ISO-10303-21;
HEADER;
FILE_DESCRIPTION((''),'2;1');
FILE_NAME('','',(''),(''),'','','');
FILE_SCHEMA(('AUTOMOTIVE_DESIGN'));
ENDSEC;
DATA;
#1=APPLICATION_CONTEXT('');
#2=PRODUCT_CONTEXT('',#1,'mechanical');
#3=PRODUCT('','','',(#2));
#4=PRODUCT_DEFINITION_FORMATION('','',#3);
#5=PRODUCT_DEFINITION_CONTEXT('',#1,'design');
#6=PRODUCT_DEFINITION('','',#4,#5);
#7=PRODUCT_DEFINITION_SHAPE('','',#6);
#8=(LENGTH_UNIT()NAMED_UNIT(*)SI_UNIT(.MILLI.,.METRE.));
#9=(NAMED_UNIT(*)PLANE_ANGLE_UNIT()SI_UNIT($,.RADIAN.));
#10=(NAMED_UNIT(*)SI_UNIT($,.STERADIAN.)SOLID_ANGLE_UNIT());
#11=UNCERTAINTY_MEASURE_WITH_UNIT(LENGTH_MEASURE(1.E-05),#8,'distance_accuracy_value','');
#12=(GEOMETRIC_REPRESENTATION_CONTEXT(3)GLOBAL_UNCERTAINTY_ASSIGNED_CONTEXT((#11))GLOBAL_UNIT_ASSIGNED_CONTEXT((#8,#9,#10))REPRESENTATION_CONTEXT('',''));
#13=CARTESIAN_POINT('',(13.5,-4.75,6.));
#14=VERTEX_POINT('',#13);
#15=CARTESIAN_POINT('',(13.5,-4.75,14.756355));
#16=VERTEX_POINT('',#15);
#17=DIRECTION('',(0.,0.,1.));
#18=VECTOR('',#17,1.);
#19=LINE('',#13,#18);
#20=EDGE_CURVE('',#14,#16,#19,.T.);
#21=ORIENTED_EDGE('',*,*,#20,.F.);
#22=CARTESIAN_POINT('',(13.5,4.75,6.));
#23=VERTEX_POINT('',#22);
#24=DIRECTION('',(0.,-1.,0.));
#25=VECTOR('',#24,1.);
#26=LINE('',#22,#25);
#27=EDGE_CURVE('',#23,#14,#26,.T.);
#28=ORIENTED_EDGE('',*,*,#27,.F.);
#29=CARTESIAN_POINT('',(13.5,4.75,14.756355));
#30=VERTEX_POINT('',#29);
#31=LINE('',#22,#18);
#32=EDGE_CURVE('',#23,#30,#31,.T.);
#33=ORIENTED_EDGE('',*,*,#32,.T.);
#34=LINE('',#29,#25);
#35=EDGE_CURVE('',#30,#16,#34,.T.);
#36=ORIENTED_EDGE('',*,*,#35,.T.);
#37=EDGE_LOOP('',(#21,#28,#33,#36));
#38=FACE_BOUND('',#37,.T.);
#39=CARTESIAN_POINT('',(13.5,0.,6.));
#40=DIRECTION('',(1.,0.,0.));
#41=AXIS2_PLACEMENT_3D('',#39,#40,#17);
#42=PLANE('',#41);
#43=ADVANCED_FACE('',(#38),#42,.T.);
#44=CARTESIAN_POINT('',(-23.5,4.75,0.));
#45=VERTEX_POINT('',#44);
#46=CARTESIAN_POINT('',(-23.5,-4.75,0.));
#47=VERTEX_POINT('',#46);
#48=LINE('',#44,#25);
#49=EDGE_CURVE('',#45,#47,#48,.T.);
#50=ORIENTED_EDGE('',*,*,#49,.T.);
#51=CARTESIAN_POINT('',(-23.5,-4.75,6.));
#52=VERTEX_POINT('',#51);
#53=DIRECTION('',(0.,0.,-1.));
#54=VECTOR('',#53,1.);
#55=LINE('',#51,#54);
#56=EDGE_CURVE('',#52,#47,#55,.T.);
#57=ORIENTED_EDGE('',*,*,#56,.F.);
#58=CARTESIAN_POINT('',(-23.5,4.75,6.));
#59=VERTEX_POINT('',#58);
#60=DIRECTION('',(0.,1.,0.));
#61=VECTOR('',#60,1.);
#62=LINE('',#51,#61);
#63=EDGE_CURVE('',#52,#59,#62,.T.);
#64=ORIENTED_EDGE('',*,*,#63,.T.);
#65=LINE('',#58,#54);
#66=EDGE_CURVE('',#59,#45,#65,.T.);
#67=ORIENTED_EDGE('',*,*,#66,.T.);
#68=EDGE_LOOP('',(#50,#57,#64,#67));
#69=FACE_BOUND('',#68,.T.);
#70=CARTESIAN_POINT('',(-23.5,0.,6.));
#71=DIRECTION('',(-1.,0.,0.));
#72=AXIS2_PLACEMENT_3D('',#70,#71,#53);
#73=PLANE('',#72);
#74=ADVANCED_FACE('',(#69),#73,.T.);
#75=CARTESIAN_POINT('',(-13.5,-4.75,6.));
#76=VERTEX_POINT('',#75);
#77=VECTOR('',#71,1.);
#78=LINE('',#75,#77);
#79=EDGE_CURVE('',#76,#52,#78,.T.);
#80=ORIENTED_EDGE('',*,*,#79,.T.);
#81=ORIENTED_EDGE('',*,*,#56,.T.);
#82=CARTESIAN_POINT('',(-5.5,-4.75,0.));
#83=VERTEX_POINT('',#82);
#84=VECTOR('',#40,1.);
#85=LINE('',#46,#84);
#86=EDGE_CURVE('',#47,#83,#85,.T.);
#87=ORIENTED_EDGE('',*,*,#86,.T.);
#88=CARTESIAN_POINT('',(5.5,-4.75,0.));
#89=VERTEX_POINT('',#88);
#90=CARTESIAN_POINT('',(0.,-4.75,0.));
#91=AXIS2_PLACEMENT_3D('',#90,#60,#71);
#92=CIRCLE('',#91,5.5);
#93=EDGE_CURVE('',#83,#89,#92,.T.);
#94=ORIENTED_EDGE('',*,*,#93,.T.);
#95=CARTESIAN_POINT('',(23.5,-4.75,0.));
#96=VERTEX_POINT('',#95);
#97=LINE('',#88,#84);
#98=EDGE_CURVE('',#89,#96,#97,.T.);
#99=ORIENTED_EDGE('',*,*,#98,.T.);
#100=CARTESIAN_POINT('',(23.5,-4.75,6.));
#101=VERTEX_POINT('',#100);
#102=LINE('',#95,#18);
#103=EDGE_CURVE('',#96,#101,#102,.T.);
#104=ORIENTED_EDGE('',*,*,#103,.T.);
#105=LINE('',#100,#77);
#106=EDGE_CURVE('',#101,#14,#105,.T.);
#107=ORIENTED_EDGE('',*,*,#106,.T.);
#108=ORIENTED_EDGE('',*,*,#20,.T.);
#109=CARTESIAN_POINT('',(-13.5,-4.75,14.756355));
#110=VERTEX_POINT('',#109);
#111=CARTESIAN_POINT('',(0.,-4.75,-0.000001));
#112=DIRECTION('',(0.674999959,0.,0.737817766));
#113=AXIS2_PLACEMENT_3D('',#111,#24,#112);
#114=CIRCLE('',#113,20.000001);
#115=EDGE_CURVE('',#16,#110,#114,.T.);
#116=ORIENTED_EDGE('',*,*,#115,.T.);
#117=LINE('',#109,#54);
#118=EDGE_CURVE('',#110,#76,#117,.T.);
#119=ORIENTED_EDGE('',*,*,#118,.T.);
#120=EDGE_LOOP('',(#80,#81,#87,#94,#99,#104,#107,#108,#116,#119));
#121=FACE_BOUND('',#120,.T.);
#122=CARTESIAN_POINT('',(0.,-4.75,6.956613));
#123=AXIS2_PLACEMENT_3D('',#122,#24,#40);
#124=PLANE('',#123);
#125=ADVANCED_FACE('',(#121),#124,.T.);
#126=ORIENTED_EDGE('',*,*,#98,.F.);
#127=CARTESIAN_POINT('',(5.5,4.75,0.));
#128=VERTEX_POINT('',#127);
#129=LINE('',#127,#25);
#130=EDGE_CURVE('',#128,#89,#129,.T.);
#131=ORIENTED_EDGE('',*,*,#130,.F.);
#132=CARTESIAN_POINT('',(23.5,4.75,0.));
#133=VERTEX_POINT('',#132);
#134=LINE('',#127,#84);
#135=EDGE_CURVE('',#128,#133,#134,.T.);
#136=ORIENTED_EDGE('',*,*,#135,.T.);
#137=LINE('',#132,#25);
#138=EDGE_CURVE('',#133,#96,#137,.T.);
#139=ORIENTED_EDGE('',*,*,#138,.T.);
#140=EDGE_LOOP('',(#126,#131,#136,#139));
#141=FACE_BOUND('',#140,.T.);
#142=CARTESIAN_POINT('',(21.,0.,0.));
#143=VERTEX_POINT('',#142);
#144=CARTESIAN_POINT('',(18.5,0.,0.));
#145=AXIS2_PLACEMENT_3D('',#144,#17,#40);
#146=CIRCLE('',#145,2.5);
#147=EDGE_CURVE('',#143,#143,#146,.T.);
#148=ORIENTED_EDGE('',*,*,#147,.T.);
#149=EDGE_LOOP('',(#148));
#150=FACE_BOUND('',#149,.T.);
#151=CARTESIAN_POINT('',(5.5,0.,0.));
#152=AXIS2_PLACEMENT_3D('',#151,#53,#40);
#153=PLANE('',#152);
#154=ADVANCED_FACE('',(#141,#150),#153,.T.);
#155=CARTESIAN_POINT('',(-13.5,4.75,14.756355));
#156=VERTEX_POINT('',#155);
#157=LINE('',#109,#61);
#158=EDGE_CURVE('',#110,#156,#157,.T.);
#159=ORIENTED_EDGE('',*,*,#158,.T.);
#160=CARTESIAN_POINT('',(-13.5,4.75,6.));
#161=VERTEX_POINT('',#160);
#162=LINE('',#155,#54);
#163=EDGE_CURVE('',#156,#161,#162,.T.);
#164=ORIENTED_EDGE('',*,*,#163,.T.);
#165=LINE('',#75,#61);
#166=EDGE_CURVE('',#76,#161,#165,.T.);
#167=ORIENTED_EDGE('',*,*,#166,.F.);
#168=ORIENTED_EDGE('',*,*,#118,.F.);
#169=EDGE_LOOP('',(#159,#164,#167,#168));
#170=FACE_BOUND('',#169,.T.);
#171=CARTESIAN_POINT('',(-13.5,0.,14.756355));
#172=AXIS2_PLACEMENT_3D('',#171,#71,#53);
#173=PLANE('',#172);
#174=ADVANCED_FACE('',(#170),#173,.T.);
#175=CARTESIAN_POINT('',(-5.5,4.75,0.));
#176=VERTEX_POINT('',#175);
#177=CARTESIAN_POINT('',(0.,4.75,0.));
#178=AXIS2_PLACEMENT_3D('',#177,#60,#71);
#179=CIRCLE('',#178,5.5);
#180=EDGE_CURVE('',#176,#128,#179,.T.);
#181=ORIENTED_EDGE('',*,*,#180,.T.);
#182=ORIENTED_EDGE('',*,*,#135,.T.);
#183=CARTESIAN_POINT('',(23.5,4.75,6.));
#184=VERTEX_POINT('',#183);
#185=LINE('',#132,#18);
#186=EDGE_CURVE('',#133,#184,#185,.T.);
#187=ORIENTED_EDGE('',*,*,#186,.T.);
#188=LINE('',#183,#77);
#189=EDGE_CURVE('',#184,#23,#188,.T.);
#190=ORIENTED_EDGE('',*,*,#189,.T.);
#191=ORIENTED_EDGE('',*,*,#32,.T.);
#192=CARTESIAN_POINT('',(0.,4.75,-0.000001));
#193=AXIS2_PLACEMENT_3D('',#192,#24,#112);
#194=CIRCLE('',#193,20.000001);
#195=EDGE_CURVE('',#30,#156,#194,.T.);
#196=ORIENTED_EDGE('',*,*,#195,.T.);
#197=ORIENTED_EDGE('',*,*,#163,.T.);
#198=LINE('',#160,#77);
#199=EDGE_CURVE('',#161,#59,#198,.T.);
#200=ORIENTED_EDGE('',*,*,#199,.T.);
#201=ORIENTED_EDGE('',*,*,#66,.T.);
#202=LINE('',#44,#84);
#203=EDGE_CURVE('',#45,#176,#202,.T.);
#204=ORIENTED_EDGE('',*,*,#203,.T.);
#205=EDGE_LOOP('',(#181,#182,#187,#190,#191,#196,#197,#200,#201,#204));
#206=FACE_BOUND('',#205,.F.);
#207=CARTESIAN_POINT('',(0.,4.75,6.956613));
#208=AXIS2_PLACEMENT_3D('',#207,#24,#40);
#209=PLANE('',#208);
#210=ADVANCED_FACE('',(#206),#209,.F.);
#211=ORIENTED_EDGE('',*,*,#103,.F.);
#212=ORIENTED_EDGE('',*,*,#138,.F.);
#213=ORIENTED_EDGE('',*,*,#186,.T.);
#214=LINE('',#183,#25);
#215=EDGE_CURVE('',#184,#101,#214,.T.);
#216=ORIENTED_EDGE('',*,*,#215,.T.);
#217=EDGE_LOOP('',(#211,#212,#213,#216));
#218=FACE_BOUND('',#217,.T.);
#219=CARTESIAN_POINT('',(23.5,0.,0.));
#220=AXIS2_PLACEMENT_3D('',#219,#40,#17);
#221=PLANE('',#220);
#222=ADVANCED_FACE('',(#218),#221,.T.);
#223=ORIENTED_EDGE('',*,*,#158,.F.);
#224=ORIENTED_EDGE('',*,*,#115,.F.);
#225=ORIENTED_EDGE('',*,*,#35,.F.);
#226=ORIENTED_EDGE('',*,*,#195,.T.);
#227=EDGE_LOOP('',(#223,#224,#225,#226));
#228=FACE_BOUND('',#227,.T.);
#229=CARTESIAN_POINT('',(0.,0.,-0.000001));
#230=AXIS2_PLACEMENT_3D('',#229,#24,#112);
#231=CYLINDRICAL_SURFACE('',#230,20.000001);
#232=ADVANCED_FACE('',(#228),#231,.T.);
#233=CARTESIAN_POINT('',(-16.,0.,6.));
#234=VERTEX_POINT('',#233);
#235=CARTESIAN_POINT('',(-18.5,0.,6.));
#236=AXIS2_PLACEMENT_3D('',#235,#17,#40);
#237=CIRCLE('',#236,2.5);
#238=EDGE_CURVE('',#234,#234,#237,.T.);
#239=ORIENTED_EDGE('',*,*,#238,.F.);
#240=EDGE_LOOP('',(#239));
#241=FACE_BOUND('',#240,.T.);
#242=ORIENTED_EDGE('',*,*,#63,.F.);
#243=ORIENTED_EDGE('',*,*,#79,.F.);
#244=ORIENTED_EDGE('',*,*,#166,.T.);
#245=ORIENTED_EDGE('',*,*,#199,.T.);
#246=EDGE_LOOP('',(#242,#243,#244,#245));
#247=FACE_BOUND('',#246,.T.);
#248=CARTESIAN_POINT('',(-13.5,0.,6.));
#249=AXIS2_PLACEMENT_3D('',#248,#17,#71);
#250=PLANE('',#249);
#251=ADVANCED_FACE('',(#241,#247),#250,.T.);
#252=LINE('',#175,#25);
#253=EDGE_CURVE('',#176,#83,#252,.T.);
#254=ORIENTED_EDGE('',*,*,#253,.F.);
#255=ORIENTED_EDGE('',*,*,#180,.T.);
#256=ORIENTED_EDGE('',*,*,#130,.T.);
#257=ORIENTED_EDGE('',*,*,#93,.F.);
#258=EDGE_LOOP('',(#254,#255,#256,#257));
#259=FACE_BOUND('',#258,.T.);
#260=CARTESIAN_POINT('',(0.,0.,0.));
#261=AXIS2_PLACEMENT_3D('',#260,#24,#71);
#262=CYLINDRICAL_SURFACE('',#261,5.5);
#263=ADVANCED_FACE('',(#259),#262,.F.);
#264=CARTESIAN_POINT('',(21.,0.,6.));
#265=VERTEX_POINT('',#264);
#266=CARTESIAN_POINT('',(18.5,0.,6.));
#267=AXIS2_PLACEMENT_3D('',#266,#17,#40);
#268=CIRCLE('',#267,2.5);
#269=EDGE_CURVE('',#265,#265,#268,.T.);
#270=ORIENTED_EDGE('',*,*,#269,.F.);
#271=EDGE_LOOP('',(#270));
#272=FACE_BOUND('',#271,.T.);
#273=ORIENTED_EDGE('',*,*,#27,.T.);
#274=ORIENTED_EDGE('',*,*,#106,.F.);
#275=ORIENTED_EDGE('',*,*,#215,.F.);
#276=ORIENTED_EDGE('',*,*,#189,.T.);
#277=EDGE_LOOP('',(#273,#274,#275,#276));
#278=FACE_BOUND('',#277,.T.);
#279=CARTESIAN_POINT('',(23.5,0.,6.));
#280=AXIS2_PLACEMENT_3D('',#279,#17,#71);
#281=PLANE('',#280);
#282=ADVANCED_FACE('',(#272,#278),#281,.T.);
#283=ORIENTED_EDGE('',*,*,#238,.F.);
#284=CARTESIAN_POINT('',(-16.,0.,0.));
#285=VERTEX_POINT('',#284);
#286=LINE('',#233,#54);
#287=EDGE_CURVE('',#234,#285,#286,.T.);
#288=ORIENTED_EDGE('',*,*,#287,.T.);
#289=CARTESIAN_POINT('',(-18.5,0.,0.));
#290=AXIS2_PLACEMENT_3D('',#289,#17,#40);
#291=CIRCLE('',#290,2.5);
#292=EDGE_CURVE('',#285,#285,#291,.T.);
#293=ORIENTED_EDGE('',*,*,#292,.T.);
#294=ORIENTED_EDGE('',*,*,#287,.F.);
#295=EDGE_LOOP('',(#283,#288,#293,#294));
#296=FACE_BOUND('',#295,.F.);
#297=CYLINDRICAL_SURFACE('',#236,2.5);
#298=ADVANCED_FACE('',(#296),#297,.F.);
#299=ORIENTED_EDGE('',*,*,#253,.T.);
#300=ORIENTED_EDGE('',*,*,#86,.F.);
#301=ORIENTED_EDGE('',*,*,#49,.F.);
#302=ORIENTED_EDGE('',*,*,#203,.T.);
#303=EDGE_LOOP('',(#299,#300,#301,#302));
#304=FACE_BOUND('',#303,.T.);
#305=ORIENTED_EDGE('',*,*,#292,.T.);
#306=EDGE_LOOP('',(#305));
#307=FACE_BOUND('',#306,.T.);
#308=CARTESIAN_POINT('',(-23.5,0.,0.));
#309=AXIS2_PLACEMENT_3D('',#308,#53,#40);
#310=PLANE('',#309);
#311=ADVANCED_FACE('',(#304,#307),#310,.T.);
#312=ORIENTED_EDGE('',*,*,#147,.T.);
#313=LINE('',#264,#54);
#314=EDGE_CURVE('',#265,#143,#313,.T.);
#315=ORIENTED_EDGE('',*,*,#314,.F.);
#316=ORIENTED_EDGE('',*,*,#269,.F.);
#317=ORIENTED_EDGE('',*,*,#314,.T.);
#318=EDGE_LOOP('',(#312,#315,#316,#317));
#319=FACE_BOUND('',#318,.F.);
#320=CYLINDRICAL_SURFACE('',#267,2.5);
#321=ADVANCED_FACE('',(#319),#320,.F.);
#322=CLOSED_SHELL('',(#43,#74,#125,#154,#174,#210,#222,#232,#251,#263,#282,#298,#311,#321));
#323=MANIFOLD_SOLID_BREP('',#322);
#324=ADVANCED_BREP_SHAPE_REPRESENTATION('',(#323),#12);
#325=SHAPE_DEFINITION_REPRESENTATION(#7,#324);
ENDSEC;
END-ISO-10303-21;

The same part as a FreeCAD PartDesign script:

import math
import FreeCAD as App
import Part
import Sketcher

V = App.Vector
Q = App.Units.Quantity

doc = App.newDocument("Part")
params = doc.addObject("Spreadsheet::Sheet", "Params")
for row, (alias, value) in enumerate([
    ("sketch1_radius", "20.000001 mm"),
    ("sketch1_radius2", "5.5 mm"),
    ("sketch1_width", "18 mm"),
    ("sketch1_width2", "10 mm"),
    ("sketch1_height", "6 mm"),
    ("pad1_length", "9.5 mm"),
    ("sketch2_diameter", "5 mm"),
], start=1):
    params.set(f"A{row}", alias)
    params.set(f"B{row}", "=" + value)
    params.setAlias(f"B{row}", alias)

body = doc.addObject("PartDesign::Body", "Body")

sketch1 = body.newObject("Sketcher::SketchObject", "Sketch")
sketch1.AttachmentSupport = (doc.getObject("XZ_Plane"), [""])
sketch1.MapMode = "FlatFace"
sketch1.addGeometry([
    Part.LineSegment(V(-24, 6, 0), V(-24, 0, 0)),
    Part.LineSegment(V(-24, 0, 0), V(-6, 0, 0)),
    Part.ArcOfCircle(Part.Circle(V(0, 0, 0), V(0, 0, 1), 6), math.radians(0), math.radians(180)),
    Part.LineSegment(V(6, 0, 0), V(24, 0, 0)),
    Part.LineSegment(V(24, 0, 0), V(24, 6, 0)),
    Part.LineSegment(V(24, 6, 0), V(14, 6, 0)),
    Part.LineSegment(V(14, 6, 0), V(14, 15, 0)),
    Part.ArcOfCircle(Part.Circle(V(0, 0, 0), V(0, 0, 1), 20), math.radians(48), math.radians(132)),
    Part.LineSegment(V(-14, 15, 0), V(-14, 6, 0)),
    Part.LineSegment(V(-14, 6, 0), V(-24, 6, 0)),
], False)
sketch1.addConstraint([
    Sketcher.Constraint("Coincident", 0, 2, 1, 1),
    Sketcher.Constraint("Coincident", 1, 2, 2, 2),
    Sketcher.Constraint("Coincident", 2, 1, 3, 1),
    Sketcher.Constraint("Coincident", 3, 2, 4, 1),
    Sketcher.Constraint("Coincident", 4, 2, 5, 1),
    Sketcher.Constraint("Coincident", 5, 2, 6, 1),
    Sketcher.Constraint("Coincident", 6, 2, 7, 1),
    Sketcher.Constraint("Coincident", 7, 2, 8, 1),
    Sketcher.Constraint("Coincident", 8, 2, 9, 1),
    Sketcher.Constraint("Coincident", 9, 2, 0, 1),
    Sketcher.Constraint("Vertical", 0),
    Sketcher.Constraint("Horizontal", 1),
    Sketcher.Constraint("Horizontal", 3),
    Sketcher.Constraint("Vertical", 4),
    Sketcher.Constraint("Horizontal", 5),
    Sketcher.Constraint("Vertical", 6),
    Sketcher.Constraint("Vertical", 8),
    Sketcher.Constraint("Horizontal", 9),
    Sketcher.Constraint("Coincident", 2, 3, -1, 1),
    Sketcher.Constraint("Coincident", 7, 3, -1, 1),
    Sketcher.Constraint("Symmetric", 0, 2, 3, 2, -1, 1),
    Sketcher.Constraint("Symmetric", 5, 2, 8, 2, -2),
    Sketcher.Constraint("PointOnObject", 0, 2, -1),
    Sketcher.Constraint("Radius", 7, Q("20.000001 mm")),
    Sketcher.Constraint("Radius", 2, Q("5.5 mm")),
    Sketcher.Constraint("DistanceX", 1, 1, 1, 2, Q("18 mm")),
    Sketcher.Constraint("DistanceX", 5, 2, 5, 1, Q("10 mm")),
    Sketcher.Constraint("DistanceY", 0, 2, 0, 1, Q("6 mm")),
])
sketch1.setExpression("Constraints[23]", "Params.sketch1_radius")
sketch1.setExpression("Constraints[24]", "Params.sketch1_radius2")
sketch1.setExpression("Constraints[25]", "Params.sketch1_width")
sketch1.setExpression("Constraints[26]", "Params.sketch1_width2")
sketch1.setExpression("Constraints[27]", "Params.sketch1_height")
pad1 = body.newObject("PartDesign::Pad", "Pad")
pad1.Profile = sketch1
pad1.setExpression("Length", "Params.pad1_length")
pad1.Midplane = True

sketch2 = body.newObject("Sketcher::SketchObject", "Sketch001")
sketch2.AttachmentSupport = (doc.getObject("XY_Plane"), [""])
sketch2.MapMode = "FlatFace"
sketch2.AttachmentOffset = App.Placement(V(0, 0, 6), App.Rotation())
sketch2.addGeometry([
    Part.Circle(V(-18.5, 0, 0), V(0, 0, 1), 2.5),
    Part.Circle(V(18.5, 0, 0), V(0, 0, 1), 2.5),
], False)
sketch2.addConstraint([
    Sketcher.Constraint("Equal", 0, 1),
    Sketcher.Constraint("Symmetric", 0, 3, 1, 3, -1, 1),
    Sketcher.Constraint("PointOnObject", 0, 3, -1),
    Sketcher.Constraint("Diameter", 0, Q("5 mm")),
    Sketcher.Constraint("DistanceX", 0, 3, 1, 3, Q("37 mm")),
])
sketch2.setExpression("Constraints[3]", "Params.sketch2_diameter")
pocket1 = body.newObject("PartDesign::Pocket", "Pocket")
pocket1.Profile = sketch2
pocket1.Type = "ThroughAll"

doc.recompute()
